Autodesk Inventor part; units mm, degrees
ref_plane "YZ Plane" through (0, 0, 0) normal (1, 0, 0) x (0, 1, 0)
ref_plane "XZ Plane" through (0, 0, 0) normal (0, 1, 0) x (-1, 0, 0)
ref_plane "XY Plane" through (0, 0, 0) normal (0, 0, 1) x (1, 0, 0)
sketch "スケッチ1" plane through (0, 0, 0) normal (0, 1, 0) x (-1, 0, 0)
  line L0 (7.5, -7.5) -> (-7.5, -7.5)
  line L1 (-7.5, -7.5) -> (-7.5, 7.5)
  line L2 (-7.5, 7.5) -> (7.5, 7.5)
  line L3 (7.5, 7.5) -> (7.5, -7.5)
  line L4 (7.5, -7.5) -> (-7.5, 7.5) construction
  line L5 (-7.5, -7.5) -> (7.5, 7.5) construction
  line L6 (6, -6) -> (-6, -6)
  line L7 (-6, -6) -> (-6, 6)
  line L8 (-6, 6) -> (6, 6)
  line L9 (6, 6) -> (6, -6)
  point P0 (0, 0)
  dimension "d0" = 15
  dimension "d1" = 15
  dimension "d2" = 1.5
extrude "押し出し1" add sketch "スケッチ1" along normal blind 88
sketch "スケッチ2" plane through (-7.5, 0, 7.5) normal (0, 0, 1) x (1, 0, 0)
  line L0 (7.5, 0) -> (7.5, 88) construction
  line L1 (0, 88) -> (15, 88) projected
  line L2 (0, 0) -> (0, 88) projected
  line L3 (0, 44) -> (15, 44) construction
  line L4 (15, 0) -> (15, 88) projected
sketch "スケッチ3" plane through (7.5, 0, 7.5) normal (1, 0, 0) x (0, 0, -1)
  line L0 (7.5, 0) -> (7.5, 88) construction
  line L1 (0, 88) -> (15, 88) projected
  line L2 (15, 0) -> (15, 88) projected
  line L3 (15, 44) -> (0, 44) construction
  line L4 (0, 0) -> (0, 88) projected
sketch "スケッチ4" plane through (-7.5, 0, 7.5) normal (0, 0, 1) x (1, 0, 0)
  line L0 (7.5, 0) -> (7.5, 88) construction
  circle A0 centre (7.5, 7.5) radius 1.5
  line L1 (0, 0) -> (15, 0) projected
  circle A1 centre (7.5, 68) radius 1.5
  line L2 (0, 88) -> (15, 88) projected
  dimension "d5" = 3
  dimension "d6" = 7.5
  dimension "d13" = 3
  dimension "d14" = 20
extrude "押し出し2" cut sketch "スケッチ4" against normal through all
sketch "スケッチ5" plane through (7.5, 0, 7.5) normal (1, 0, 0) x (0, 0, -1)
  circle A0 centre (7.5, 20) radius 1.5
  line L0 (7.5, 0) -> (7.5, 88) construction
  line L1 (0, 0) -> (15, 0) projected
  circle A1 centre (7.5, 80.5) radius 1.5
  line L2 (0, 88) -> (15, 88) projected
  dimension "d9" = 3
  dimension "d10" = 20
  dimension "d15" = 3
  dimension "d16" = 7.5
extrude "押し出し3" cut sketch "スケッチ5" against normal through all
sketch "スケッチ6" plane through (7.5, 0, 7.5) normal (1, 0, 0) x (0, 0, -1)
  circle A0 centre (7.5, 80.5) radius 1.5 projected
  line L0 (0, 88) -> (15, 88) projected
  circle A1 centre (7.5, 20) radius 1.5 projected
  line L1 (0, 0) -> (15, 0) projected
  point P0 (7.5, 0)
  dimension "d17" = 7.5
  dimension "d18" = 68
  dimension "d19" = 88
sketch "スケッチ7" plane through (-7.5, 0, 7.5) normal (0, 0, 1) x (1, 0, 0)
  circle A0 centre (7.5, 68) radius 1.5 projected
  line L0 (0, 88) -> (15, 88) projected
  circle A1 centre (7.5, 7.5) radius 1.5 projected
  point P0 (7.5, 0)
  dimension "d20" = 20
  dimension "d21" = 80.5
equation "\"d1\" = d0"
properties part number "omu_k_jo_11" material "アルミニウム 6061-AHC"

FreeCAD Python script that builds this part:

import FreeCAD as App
import Part
import Sketcher

V = App.Vector


def add_polygon(sketch, points):
    """Adds a closed chain of lines whose ends are joined by coincident constraints."""
    first, n = sketch.GeometryCount, len(points)
    for a, b in zip(points, points[1:] + points[:1]):
        sketch.addGeometry(Part.LineSegment(App.Vector(*a, 0), App.Vector(*b, 0)), False)
    for i in range(n):
        sketch.addConstraint(Sketcher.Constraint("Coincident", first + i, 2, first + (i + 1) % n, 1))

doc = App.newDocument("Part")
body = doc.addObject("PartDesign::Body", "Body")

# Sketch on XZ plane
sketch1 = body.newObject("Sketcher::SketchObject", "Sketch")
sketch1.AttachmentSupport = (doc.getObject("XZ_Plane"), [""])
sketch1.MapMode = "FlatFace"
add_polygon(sketch1, [(8, -8), (-8, -8), (-8, 8), (8, 8)])  # lines 0-3
add_polygon(sketch1, [(-6, 6), (-6, -6), (6, -6), (6, 6)])  # lines 4-7
sketch1.addConstraint([
    Sketcher.Constraint("Horizontal", 0),
    Sketcher.Constraint("Vertical", 1),
    Sketcher.Constraint("Horizontal", 2),
    Sketcher.Constraint("Vertical", 3),
    Sketcher.Constraint("Vertical", 4),
    Sketcher.Constraint("Horizontal", 5),
    Sketcher.Constraint("Vertical", 6),
    Sketcher.Constraint("Horizontal", 7),
    Sketcher.Constraint("Symmetric", 0, 2, 2, 2, -1, 1),
    Sketcher.Constraint("Symmetric", 4, 2, 6, 2, -1, 1),
    Sketcher.Constraint("Equal", 2, 1),
    Sketcher.Constraint("Equal", 7, 4),
    Sketcher.Constraint("DistanceX", 0, 2, 0, 1, 15.0),
    Sketcher.Constraint("DistanceX", 0, 2, 4, 2, 1.5),
])
pad1 = body.newObject("PartDesign::Pad", "Pad")
pad1.Profile = sketch1
pad1.Length = 88
pad1.Reversed = True

# Sketch on XY plane
sketch2 = body.newObject("Sketcher::SketchObject", "Sketch001")
sketch2.AttachmentSupport = (doc.getObject("XY_Plane"), [""])
sketch2.MapMode = "FlatFace"
sketch2.AttachmentOffset = App.Placement(V(0, 0, 7.5), App.Rotation())
sketch2.addGeometry([
    Part.Circle(V(0, 7.5, 0), V(0, 0, 1), 1.5),
    Part.Circle(V(0, 68, 0), V(0, 0, 1), 1.5),
], False)
sketch2.addConstraint([
    Sketcher.Constraint("Equal", 0, 1),
    Sketcher.Constraint("PointOnObject", 0, 3, -2),
    Sketcher.Constraint("PointOnObject", 1, 3, -2),
    Sketcher.Constraint("Diameter", 0, 3.0),
    Sketcher.Constraint("DistanceY", -1, 1, 0, 3, 7.5),
    Sketcher.Constraint("DistanceY", -1, 1, 1, 3, 68.0),
])
pocket1 = body.newObject("PartDesign::Pocket", "Pocket")
pocket1.Profile = sketch2
pocket1.Type = "ThroughAll"

# Sketch on YZ plane
sketch3 = body.newObject("Sketcher::SketchObject", "Sketch002")
sketch3.AttachmentSupport = (doc.getObject("YZ_Plane"), [""])
sketch3.MapMode = "FlatFace"
sketch3.AttachmentOffset = App.Placement(V(0, 0, 7.5), App.Rotation())
sketch3.addGeometry([
    Part.Circle(V(20, 0, 0), V(0, 0, 1), 1.5),
    Part.Circle(V(80.5, 0, 0), V(0, 0, 1), 1.5),
], False)
sketch3.addConstraint([
    Sketcher.Constraint("Equal", 0, 1),
    Sketcher.Constraint("PointOnObject", 0, 3, -1),
    Sketcher.Constraint("PointOnObject", 1, 3, -1),
    Sketcher.Constraint("Diameter", 0, 3.0),
    Sketcher.Constraint("DistanceX", -1, 1, 0, 3, 20.0),
    Sketcher.Constraint("DistanceX", -1, 1, 1, 3, 80.5),
])
pocket2 = body.newObject("PartDesign::Pocket", "Pocket001")
pocket2.Profile = sketch3
pocket2.Type = "ThroughAll"

doc.recompute()
